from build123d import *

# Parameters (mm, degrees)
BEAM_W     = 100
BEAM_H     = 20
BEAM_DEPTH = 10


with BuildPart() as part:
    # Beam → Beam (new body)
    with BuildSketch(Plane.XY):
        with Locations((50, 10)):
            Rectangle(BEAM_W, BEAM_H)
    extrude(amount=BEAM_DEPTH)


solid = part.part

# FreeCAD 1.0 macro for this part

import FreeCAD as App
import Part
import Sketcher
from FreeCAD import Vector


def add_polygon(sketch, points):
    """Adds a closed chain of lines whose ends are joined by coincident constraints."""
    first, n = sketch.GeometryCount, len(points)
    for a, b in zip(points, points[1:] + points[:1]):
        sketch.addGeometry(Part.LineSegment(App.Vector(*a, 0), App.Vector(*b, 0)), False)
    for i in range(n):
        sketch.addConstraint(Sketcher.Constraint("Coincident", first + i, 2, first + (i + 1) % n, 1))

doc = App.newDocument("Part")
params = doc.addObject("Spreadsheet::Sheet", "Params")
for row, (alias, value) in enumerate([
    ("sketch1_width", "100 mm"),
    ("sketch1_height", "20 mm"),
    ("pad1_length", "10 mm"),
], start=1):
    params.set(f"A{row}", alias)
    params.set(f"B{row}", "=" + value)
    params.setAlias(f"B{row}", alias)

body = doc.addObject("PartDesign::Body", "Body")

# Sketch on XY plane
sketch1 = body.newObject("Sketcher::SketchObject", "Sketch")
sketch1.AttachmentSupport = (doc.getObject("XY_Plane"), [""])
sketch1.MapMode = "FlatFace"
add_polygon(sketch1, [(0, 20), (0, 0), (100, 0), (100, 20)])  # lines 0-3
sketch1.addConstraint(Sketcher.Constraint("Vertical", 0))
sketch1.addConstraint(Sketcher.Constraint("Horizontal", 1))
sketch1.addConstraint(Sketcher.Constraint("Vertical", 2))
sketch1.addConstraint(Sketcher.Constraint("Horizontal", 3))
sketch1.addConstraint(Sketcher.Constraint("Coincident", 0, 2, -1, 1))
sketch1.addConstraint(Sketcher.Constraint("DistanceX", 1, 1, 1, 2, 100.0))
sketch1.addConstraint(Sketcher.Constraint("DistanceY", 0, 2, 0, 1, 20.0))
sketch1.setExpression("Constraints[9]", "Params.sketch1_width")
sketch1.setExpression("Constraints[10]", "Params.sketch1_height")
pad1 = body.newObject("PartDesign::Pad", "Pad")
pad1.Profile = sketch1
pad1.setExpression("Length", "Params.pad1_length")

doc.recompute()
